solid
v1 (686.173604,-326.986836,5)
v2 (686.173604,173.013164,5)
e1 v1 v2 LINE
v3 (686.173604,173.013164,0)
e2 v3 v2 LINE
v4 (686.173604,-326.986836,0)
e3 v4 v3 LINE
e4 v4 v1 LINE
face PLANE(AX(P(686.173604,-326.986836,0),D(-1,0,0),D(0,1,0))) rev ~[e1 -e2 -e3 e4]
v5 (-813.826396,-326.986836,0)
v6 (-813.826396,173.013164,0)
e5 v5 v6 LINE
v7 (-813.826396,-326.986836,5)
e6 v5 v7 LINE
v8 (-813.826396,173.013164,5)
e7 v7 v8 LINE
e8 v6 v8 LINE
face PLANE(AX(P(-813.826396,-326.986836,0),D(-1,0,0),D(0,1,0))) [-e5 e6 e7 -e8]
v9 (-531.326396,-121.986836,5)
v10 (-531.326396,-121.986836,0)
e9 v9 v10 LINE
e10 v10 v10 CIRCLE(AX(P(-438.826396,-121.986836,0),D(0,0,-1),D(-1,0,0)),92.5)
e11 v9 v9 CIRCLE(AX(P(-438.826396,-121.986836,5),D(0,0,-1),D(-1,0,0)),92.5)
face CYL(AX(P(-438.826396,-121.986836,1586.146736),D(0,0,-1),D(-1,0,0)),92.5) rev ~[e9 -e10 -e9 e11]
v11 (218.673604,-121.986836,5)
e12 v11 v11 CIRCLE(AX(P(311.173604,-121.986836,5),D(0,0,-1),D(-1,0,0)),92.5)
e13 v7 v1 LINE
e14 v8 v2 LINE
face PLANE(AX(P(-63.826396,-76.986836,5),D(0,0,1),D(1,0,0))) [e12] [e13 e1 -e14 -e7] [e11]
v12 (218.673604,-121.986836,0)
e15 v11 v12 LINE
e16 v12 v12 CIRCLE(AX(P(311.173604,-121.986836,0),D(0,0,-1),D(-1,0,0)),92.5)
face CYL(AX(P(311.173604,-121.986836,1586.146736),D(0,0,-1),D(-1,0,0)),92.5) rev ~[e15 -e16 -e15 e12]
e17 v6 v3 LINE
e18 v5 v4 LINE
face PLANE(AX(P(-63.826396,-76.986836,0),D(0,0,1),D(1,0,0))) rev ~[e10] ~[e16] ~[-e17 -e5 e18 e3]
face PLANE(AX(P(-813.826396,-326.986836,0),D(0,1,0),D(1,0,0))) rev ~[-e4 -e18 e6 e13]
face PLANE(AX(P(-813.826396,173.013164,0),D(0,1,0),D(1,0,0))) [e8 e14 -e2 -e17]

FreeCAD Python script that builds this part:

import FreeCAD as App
import Part
import Sketcher
Q = App.Units.Quantity


def add_polygon(sketch, points):
    """Adds a closed chain of lines whose ends are joined by coincident constraints."""
    first, n = sketch.GeometryCount, len(points)
    for a, b in zip(points, points[1:] + points[:1]):
        sketch.addGeometry(Part.LineSegment(App.Vector(*a, 0), App.Vector(*b, 0)), False)
    for i in range(n):
        sketch.addConstraint(Sketcher.Constraint("Coincident", first + i, 2, first + (i + 1) % n, 1))

doc = App.newDocument("Part")
body = doc.addObject("PartDesign::Body", "Body")

# Sketch on XY plane
sketch1 = doc.addObject("Sketcher::SketchObject", "Sketch")
body.addObject(sketch1)
sketch1.AttachmentSupport = (doc.XY_Plane, [""])
sketch1.MapMode = "FlatFace"
add_polygon(sketch1, [(-813.826396, 173.013164), (-813.826396, -326.986836), (686.173604, -326.986836), (686.173604, 173.013164)])  # lines 0-3
sketch1.addConstraint([
    Sketcher.Constraint("Vertical", 0),
    Sketcher.Constraint("Horizontal", 1),
    Sketcher.Constraint("Vertical", 2),
    Sketcher.Constraint("Horizontal", 3),
    Sketcher.Constraint("DistanceX", 1, 1, 1, 2, Q("1500 mm")),
    Sketcher.Constraint("DistanceY", 0, 2, 0, 1, Q("500 mm")),
    Sketcher.Constraint("DistanceX", 0, 2, -1, 1, Q("813.826396 mm")),
    Sketcher.Constraint("DistanceY", 0, 2, -1, 1, Q("326.986836 mm")),
])
pad1 = doc.addObject("PartDesign::Pad", "Pad")
body.addObject(pad1)
pad1.Profile = sketch1
pad1.Length = 5

# Sketch on XY plane
sketch2 = doc.addObject("Sketcher::SketchObject", "Sketch001")
body.addObject(sketch2)
sketch2.AttachmentSupport = (doc.XY_Plane, [""])
sketch2.MapMode = "FlatFace"
sketch2.AttachmentOffset = App.Placement(App.Vector(0, 0, 5), App.Rotation())
sketch2.addGeometry([
    Part.Circle(App.Vector(-438.826396, -121.986836, 0), App.Vector(0, 0, 1), 92.5),
    Part.Circle(App.Vector(311.173604, -121.986836, 0), App.Vector(0, 0, 1), 92.5),
], False)
sketch2.addConstraint([
    Sketcher.Constraint("Equal", 0, 1),
    Sketcher.Constraint("Horizontal", 0, 3, 1, 3),
    Sketcher.Constraint("Diameter", 0, Q("185 mm")),
    Sketcher.Constraint("DistanceX", 0, 3, 1, 3, Q("750 mm")),
    Sketcher.Constraint("DistanceX", 0, 3, -1, 1, Q("438.826396 mm")),
    Sketcher.Constraint("DistanceY", 0, 3, -1, 1, Q("121.986836 mm")),
])
doc.recompute()
hole = doc.addObject("PartDesign::Hole", "Hole")
body.addObject(hole)
hole.Profile = sketch2
hole.ThreadType = "None"
hole.Diameter = 185
hole.DepthType = "ThroughAll"

doc.recompute()
